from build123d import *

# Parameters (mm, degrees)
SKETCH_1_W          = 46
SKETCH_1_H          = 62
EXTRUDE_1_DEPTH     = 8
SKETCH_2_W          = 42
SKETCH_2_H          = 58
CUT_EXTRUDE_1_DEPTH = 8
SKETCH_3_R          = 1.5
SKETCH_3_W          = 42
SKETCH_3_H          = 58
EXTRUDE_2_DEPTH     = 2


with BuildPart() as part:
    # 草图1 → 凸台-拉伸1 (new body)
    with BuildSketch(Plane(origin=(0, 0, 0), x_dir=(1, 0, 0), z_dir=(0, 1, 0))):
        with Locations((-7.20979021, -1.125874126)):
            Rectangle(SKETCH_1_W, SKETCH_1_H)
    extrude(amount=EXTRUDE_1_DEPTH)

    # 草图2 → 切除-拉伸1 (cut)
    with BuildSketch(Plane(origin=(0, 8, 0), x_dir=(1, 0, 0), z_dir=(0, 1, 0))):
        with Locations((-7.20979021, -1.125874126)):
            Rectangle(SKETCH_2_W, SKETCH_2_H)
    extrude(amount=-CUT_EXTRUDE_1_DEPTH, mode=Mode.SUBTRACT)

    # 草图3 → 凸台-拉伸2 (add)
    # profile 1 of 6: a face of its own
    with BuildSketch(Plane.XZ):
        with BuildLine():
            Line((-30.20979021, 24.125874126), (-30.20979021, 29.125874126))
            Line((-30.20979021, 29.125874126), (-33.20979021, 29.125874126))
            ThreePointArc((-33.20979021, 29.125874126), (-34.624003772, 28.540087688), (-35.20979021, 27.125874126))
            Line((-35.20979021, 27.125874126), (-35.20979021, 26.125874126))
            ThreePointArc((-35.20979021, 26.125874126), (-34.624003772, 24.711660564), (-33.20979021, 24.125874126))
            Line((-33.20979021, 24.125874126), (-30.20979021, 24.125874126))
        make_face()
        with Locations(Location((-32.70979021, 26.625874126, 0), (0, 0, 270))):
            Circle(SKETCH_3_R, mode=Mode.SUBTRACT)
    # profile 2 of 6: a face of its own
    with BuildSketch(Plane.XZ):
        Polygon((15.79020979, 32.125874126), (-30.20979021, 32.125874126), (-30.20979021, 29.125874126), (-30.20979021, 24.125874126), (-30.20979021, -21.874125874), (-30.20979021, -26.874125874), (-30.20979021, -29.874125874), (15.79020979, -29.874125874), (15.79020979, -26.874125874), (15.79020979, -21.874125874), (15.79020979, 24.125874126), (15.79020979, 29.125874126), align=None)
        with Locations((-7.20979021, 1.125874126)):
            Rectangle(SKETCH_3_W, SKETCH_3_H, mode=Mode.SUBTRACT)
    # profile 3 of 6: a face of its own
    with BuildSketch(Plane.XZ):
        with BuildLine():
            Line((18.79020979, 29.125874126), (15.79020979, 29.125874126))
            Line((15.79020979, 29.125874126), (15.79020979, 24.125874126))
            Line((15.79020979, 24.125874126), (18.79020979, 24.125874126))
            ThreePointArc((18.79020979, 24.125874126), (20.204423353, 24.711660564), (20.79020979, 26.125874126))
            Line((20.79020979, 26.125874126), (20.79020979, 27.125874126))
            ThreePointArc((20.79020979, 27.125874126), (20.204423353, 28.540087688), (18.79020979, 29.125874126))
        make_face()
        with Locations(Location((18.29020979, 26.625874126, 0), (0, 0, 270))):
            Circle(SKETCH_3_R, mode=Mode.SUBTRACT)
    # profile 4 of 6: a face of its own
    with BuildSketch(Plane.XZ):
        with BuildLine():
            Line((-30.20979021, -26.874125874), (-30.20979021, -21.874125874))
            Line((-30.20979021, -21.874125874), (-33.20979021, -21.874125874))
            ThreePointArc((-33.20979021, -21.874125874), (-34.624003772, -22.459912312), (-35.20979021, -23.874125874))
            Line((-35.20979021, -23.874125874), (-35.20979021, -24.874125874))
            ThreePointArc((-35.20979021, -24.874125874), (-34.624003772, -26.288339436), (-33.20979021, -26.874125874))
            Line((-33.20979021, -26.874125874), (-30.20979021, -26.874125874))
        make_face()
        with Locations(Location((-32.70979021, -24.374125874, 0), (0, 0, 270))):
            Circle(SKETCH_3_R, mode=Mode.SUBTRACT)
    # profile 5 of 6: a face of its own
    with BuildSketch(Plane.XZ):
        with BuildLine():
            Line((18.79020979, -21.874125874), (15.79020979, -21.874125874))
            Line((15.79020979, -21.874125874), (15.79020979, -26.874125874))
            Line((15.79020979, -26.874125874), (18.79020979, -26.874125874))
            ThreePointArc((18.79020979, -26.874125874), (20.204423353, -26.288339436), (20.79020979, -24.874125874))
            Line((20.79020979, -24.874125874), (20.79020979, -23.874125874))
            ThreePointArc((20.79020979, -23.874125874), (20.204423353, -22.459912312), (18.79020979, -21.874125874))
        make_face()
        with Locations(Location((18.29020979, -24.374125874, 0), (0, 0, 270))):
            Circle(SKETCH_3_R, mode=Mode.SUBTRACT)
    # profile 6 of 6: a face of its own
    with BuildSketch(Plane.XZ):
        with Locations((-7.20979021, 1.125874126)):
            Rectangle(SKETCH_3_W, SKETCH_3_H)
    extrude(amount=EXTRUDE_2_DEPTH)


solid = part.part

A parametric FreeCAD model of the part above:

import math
import FreeCAD as App
import Part
import Sketcher
from FreeCAD import Vector
Q = App.Units.Quantity

doc = App.newDocument("Part")
body = doc.addObject("PartDesign::Body", "Body")

sketch1 = body.newObject("Sketcher::SketchObject", "Sketch")
sketch1.AttachmentSupport = (doc.getObject("XZ_Plane"), [""])
sketch1.MapMode = "FlatFace"
sketch1.addGeometry(Part.LineSegment(Vector(-30.20979, -29.874126, 0), Vector(-30.20979, 32.125874, 0)), False)
sketch1.addGeometry(Part.LineSegment(Vector(-30.20979, 32.125874, 0), Vector(15.79021, 32.125874, 0)), False)
sketch1.addGeometry(Part.LineSegment(Vector(15.79021, 32.125874, 0), Vector(15.79021, -29.874126, 0)), False)
sketch1.addGeometry(Part.LineSegment(Vector(15.79021, -29.874126, 0), Vector(-30.20979, -29.874126, 0)), False)
sketch1.addConstraint(Sketcher.Constraint("Coincident", 0, 2, 1, 1))
sketch1.addConstraint(Sketcher.Constraint("Coincident", 1, 2, 2, 1))
sketch1.addConstraint(Sketcher.Constraint("Coincident", 2, 2, 3, 1))
sketch1.addConstraint(Sketcher.Constraint("Coincident", 3, 2, 0, 1))
sketch1.addConstraint(Sketcher.Constraint("Vertical", 0))
sketch1.addConstraint(Sketcher.Constraint("Horizontal", 1))
sketch1.addConstraint(Sketcher.Constraint("Vertical", 2))
sketch1.addConstraint(Sketcher.Constraint("Horizontal", 3))
sketch1.addConstraint(Sketcher.Constraint("DistanceX", 1, 1, 1, 2, Q("46 mm")))
sketch1.addConstraint(Sketcher.Constraint("DistanceY", 0, 1, 0, 2, Q("62 mm")))
sketch1.addConstraint(Sketcher.Constraint("DistanceX", 0, 2, -1, 1, Q("30.20979 mm")))
sketch1.addConstraint(Sketcher.Constraint("DistanceY", -1, 1, 0, 2, Q("32.125874 mm")))
pad1 = body.newObject("PartDesign::Pad", "Pad")
pad1.Profile = sketch1
pad1.Length = 8
pad1.Reversed = True

sketch2 = body.newObject("Sketcher::SketchObject", "Sketch001")
sketch2.AttachmentSupport = (doc.getObject("XZ_Plane"), [""])
sketch2.MapMode = "FlatFace"
sketch2.AttachmentOffset = App.Placement(Vector(0, 0, -8), App.Rotation())
sketch2.addGeometry(Part.LineSegment(Vector(-28.20979, -27.874126, 0), Vector(-28.20979, 30.125874, 0)), False)
sketch2.addGeometry(Part.LineSegment(Vector(-28.20979, 30.125874, 0), Vector(13.79021, 30.125874, 0)), False)
sketch2.addGeometry(Part.LineSegment(Vector(13.79021, 30.125874, 0), Vector(13.79021, -27.874126, 0)), False)
sketch2.addGeometry(Part.LineSegment(Vector(13.79021, -27.874126, 0), Vector(-28.20979, -27.874126, 0)), False)
sketch2.addConstraint(Sketcher.Constraint("Coincident", 0, 2, 1, 1))
sketch2.addConstraint(Sketcher.Constraint("Coincident", 1, 2, 2, 1))
sketch2.addConstraint(Sketcher.Constraint("Coincident", 2, 2, 3, 1))
sketch2.addConstraint(Sketcher.Constraint("Coincident", 3, 2, 0, 1))
sketch2.addConstraint(Sketcher.Constraint("Vertical", 0))
sketch2.addConstraint(Sketcher.Constraint("Horizontal", 1))
sketch2.addConstraint(Sketcher.Constraint("Vertical", 2))
sketch2.addConstraint(Sketcher.Constraint("Horizontal", 3))
sketch2.addConstraint(Sketcher.Constraint("DistanceX", 1, 1, 1, 2, Q("42 mm")))
sketch2.addConstraint(Sketcher.Constraint("DistanceY", 0, 1, 0, 2, Q("58 mm")))
sketch2.addConstraint(Sketcher.Constraint("DistanceX", 0, 2, -1, 1, Q("28.20979 mm")))
sketch2.addConstraint(Sketcher.Constraint("DistanceY", -1, 1, 0, 2, Q("30.125874 mm")))
pocket1 = body.newObject("PartDesign::Pocket", "Pocket")
pocket1.Profile = sketch2
pocket1.Length = 8
pocket1.Reversed = True

sketch3 = body.newObject("Sketcher::SketchObject", "Sketch002")
sketch3.AttachmentSupport = (doc.getObject("XZ_Plane"), [""])
sketch3.MapMode = "FlatFace"
sketch3.addGeometry(Part.LineSegment(Vector(-33.20979, 24.125874, 0), Vector(-30.20979, 24.125874, 0)), False)
sketch3.addGeometry(Part.LineSegment(Vector(-30.20979, 24.125874, 0), Vector(-30.20979, -21.874126, 0)), False)
sketch3.addGeometry(Part.LineSegment(Vector(-30.20979, -21.874126, 0), Vector(-33.20979, -21.874126, 0)), False)
sketch3.addGeometry(Part.ArcOfCircle(Part.Circle(Vector(-33.20979, -23.874126, 0), Vector(0, 0, 1), 2), math.radians(90), math.radians(180)), False)
sketch3.addGeometry(Part.LineSegment(Vector(-35.20979, -23.874126, 0), Vector(-35.20979, -24.874126, 0)), False)
sketch3.addGeometry(Part.ArcOfCircle(Part.Circle(Vector(-33.20979, -24.874126, 0), Vector(0, 0, 1), 2), math.radians(-180), math.radians(-90)), False)
sketch3.addGeometry(Part.LineSegment(Vector(-33.20979, -26.874126, 0), Vector(-30.20979, -26.874126, 0)), False)
sketch3.addGeometry(Part.LineSegment(Vector(-30.20979, -26.874126, 0), Vector(-30.20979, -29.874126, 0)), False)
sketch3.addGeometry(Part.LineSegment(Vector(-30.20979, -29.874126, 0), Vector(15.79021, -29.874126, 0)), False)
sketch3.addGeometry(Part.LineSegment(Vector(15.79021, -29.874126, 0), Vector(15.79021, -26.874126, 0)), False)
sketch3.addGeometry(Part.LineSegment(Vector(15.79021, -26.874126, 0), Vector(18.79021, -26.874126, 0)), False)
sketch3.addGeometry(Part.ArcOfCircle(Part.Circle(Vector(18.79021, -24.874126, 0), Vector(0, 0, 1), 2), math.radians(-90), math.radians(0)), False)
sketch3.addGeometry(Part.LineSegment(Vector(20.79021, -24.874126, 0), Vector(20.79021, -23.874126, 0)), False)
sketch3.addGeometry(Part.ArcOfCircle(Part.Circle(Vector(18.79021, -23.874126, 0), Vector(0, 0, 1), 2), math.radians(0), math.radians(90)), False)
sketch3.addGeometry(Part.LineSegment(Vector(18.79021, -21.874126, 0), Vector(15.79021, -21.874126, 0)), False)
sketch3.addGeometry(Part.LineSegment(Vector(15.79021, -21.874126, 0), Vector(15.79021, 24.125874, 0)), False)
sketch3.addGeometry(Part.LineSegment(Vector(15.79021, 24.125874, 0), Vector(18.79021, 24.125874, 0)), False)
sketch3.addGeometry(Part.ArcOfCircle(Part.Circle(Vector(18.79021, 26.125874, 0), Vector(0, 0, 1), 2), math.radians(-90), math.radians(0)), False)
sketch3.addGeometry(Part.LineSegment(Vector(20.79021, 26.125874, 0), Vector(20.79021, 27.125874, 0)), False)
sketch3.addGeometry(Part.ArcOfCircle(Part.Circle(Vector(18.79021, 27.125874, 0), Vector(0, 0, 1), 2), math.radians(0), math.radians(90)), False)
sketch3.addGeometry(Part.LineSegment(Vector(18.79021, 29.125874, 0), Vector(15.79021, 29.125874, 0)), False)
sketch3.addGeometry(Part.LineSegment(Vector(15.79021, 29.125874, 0), Vector(15.79021, 32.125874, 0)), False)
sketch3.addGeometry(Part.LineSegment(Vector(15.79021, 32.125874, 0), Vector(-30.20979, 32.125874, 0)), False)
sketch3.addGeometry(Part.LineSegment(Vector(-30.20979, 32.125874, 0), Vector(-30.20979, 29.125874, 0)), False)
sketch3.addGeometry(Part.LineSegment(Vector(-30.20979, 29.125874, 0), Vector(-33.20979, 29.125874, 0)), False)
sketch3.addGeometry(Part.ArcOfCircle(Part.Circle(Vector(-33.20979, 27.125874, 0), Vector(0, 0, 1), 2), math.radians(90), math.radians(180)), False)
sketch3.addGeometry(Part.LineSegment(Vector(-35.20979, 27.125874, 0), Vector(-35.20979, 26.125874, 0)), False)
sketch3.addGeometry(Part.ArcOfCircle(Part.Circle(Vector(-33.20979, 26.125874, 0), Vector(0, 0, 1), 2), math.radians(-180), math.radians(-90)), False)
sketch3.addGeometry(Part.Circle(Vector(-32.70979, 26.625874, 0), Vector(0, 0, 1), 1.5), False)
sketch3.addGeometry(Part.Circle(Vector(18.29021, -24.374126, 0), Vector(0, 0, 1), 1.5), False)
sketch3.addGeometry(Part.Circle(Vector(18.29021, 26.625874, 0), Vector(0, 0, 1), 1.5), False)
sketch3.addGeometry(Part.Circle(Vector(-32.70979, -24.374126, 0), Vector(0, 0, 1), 1.5), False)
sketch3.addConstraint(Sketcher.Constraint("Coincident", 0, 2, 1, 1))
sketch3.addConstraint(Sketcher.Constraint("Coincident", 1, 2, 2, 1))
sketch3.addConstraint(Sketcher.Constraint("Tangent", 2, 2, 3, 1))
sketch3.addConstraint(Sketcher.Constraint("Tangent", 3, 2, 4, 1))
sketch3.addConstraint(Sketcher.Constraint("Tangent", 4, 2, 5, 1))
sketch3.addConstraint(Sketcher.Constraint("Tangent", 5, 2, 6, 1))
sketch3.addConstraint(Sketcher.Constraint("Coincident", 6, 2, 7, 1))
sketch3.addConstraint(Sketcher.Constraint("Coincident", 7, 2, 8, 1))
sketch3.addConstraint(Sketcher.Constraint("Coincident", 8, 2, 9, 1))
sketch3.addConstraint(Sketcher.Constraint("Coincident", 9, 2, 10, 1))
sketch3.addConstraint(Sketcher.Constraint("Tangent", 10, 2, 11, 1))
sketch3.addConstraint(Sketcher.Constraint("Tangent", 11, 2, 12, 1))
sketch3.addConstraint(Sketcher.Constraint("Tangent", 12, 2, 13, 1))
sketch3.addConstraint(Sketcher.Constraint("Tangent", 13, 2, 14, 1))
sketch3.addConstraint(Sketcher.Constraint("Coincident", 14, 2, 15, 1))
sketch3.addConstraint(Sketcher.Constraint("Coincident", 15, 2, 16, 1))
sketch3.addConstraint(Sketcher.Constraint("Tangent", 16, 2, 17, 1))
sketch3.addConstraint(Sketcher.Constraint("Tangent", 17, 2, 18, 1))
sketch3.addConstraint(Sketcher.Constraint("Tangent", 18, 2, 19, 1))
sketch3.addConstraint(Sketcher.Constraint("Tangent", 19, 2, 20, 1))
sketch3.addConstraint(Sketcher.Constraint("Coincident", 20, 2, 21, 1))
sketch3.addConstraint(Sketcher.Constraint("Coincident", 21, 2, 22, 1))
sketch3.addConstraint(Sketcher.Constraint("Coincident", 22, 2, 23, 1))
sketch3.addConstraint(Sketcher.Constraint("Coincident", 23, 2, 24, 1))
sketch3.addConstraint(Sketcher.Constraint("Tangent", 24, 2, 25, 1))
sketch3.addConstraint(Sketcher.Constraint("Tangent", 25, 2, 26, 1))
sketch3.addConstraint(Sketcher.Constraint("Tangent", 26, 2, 27, 1))
sketch3.addConstraint(Sketcher.Constraint("Tangent", 27, 2, 0, 1))
sketch3.addConstraint(Sketcher.Constraint("Horizontal", 0))
sketch3.addConstraint(Sketcher.Constraint("Vertical", 1))
sketch3.addConstraint(Sketcher.Constraint("Horizontal", 2))
sketch3.addConstraint(Sketcher.Constraint("Vertical", 4))
sketch3.addConstraint(Sketcher.Constraint("Horizontal", 6))
sketch3.addConstraint(Sketcher.Constraint("Vertical", 7))
sketch3.addConstraint(Sketcher.Constraint("Horizontal", 8))
sketch3.addConstraint(Sketcher.Constraint("Vertical", 9))
sketch3.addConstraint(Sketcher.Constraint("Horizontal", 10))
sketch3.addConstraint(Sketcher.Constraint("Vertical", 12))
sketch3.addConstraint(Sketcher.Constraint("Horizontal", 14))
sketch3.addConstraint(Sketcher.Constraint("Vertical", 15))
sketch3.addConstraint(Sketcher.Constraint("Horizontal", 16))
sketch3.addConstraint(Sketcher.Constraint("Vertical", 18))
sketch3.addConstraint(Sketcher.Constraint("Horizontal", 20))
sketch3.addConstraint(Sketcher.Constraint("Vertical", 21))
sketch3.addConstraint(Sketcher.Constraint("Horizontal", 22))
sketch3.addConstraint(Sketcher.Constraint("Vertical", 23))
sketch3.addConstraint(Sketcher.Constraint("Horizontal", 24))
sketch3.addConstraint(Sketcher.Constraint("Vertical", 26))
sketch3.addConstraint(Sketcher.Constraint("Equal", 3, 5))
sketch3.addConstraint(Sketcher.Constraint("Equal", 5, 11))
sketch3.addConstraint(Sketcher.Constraint("Equal", 11, 13))
sketch3.addConstraint(Sketcher.Constraint("Equal", 13, 17))
sketch3.addConstraint(Sketcher.Constraint("Equal", 17, 19))
sketch3.addConstraint(Sketcher.Constraint("Equal", 19, 25))
sketch3.addConstraint(Sketcher.Constraint("Equal", 25, 27))
sketch3.addConstraint(Sketcher.Constraint("Equal", 28, 29))
sketch3.addConstraint(Sketcher.Constraint("Equal", 29, 30))
sketch3.addConstraint(Sketcher.Constraint("Equal", 30, 31))
sketch3.addConstraint(Sketcher.Constraint("Horizontal", 5, 3, 11, 3))
sketch3.addConstraint(Sketcher.Constraint("Horizontal", 3, 3, 13, 3))
sketch3.addConstraint(Sketcher.Constraint("Horizontal", 19, 3, 25, 3))
sketch3.addConstraint(Sketcher.Constraint("Horizontal", 17, 3, 27, 3))
sketch3.addConstraint(Sketcher.Constraint("Horizontal", 28, 3, 30, 3))
sketch3.addConstraint(Sketcher.Constraint("Horizontal", 29, 3, 31, 3))
sketch3.addConstraint(Sketcher.Constraint("Vertical", 13, 3, 17, 3))
sketch3.addConstraint(Sketcher.Constraint("Vertical", 5, 3, 25, 3))
sketch3.addConstraint(Sketcher.Constraint("Vertical", 29, 3, 30, 3))
sketch3.addConstraint(Sketcher.Constraint("Vertical", 28, 3, 31, 3))
sketch3.addConstraint(Sketcher.Constraint("Vertical", 1, 2, 6, 2))
sketch3.addConstraint(Sketcher.Constraint("Vertical", 9, 2, 14, 2))
sketch3.addConstraint(Sketcher.Constraint("Vertical", 15, 2, 20, 2))
sketch3.addConstraint(Sketcher.Constraint("Vertical", 7, 2, 22, 2))
sketch3.addConstraint(Sketcher.Constraint("Equal", 6, 10))
sketch3.addConstraint(Sketcher.Constraint("Equal", 22, 1))
sketch3.addConstraint(Sketcher.Constraint("Equal", 24, 7))
sketch3.addConstraint(Sketcher.Constraint("Equal", 12, 18))
sketch3.addConstraint(Sketcher.Constraint("Equal", 9, 21))
sketch3.addConstraint(Sketcher.Constraint("Diameter", 28, Q("3 mm")))
sketch3.addConstraint(Sketcher.Constraint("Radius", 3, Q("2 mm")))
sketch3.addConstraint(Sketcher.Constraint("DistanceX", 0, 1, 0, 2, Q("3 mm")))
sketch3.addConstraint(Sketcher.Constraint("DistanceX", 8, 1, 8, 2, Q("46 mm")))
sketch3.addConstraint(Sketcher.Constraint("DistanceY", 4, 2, 4, 1, Q("1 mm")))
sketch3.addConstraint(Sketcher.Constraint("DistanceX", 28, 3, 30, 3, Q("51 mm")))
sketch3.addConstraint(Sketcher.Constraint("DistanceY", 29, 3, 30, 3, Q("51 mm")))
sketch3.addConstraint(Sketcher.Constraint("DistanceX", 25, 3, 28, 3, Q("0.5 mm")))
sketch3.addConstraint(Sketcher.Constraint("DistanceY", 28, 3, 25, 3, Q("0.5 mm")))
sketch3.addConstraint(Sketcher.Constraint("DistanceX", 3, 3, -1, 1, Q("33.20979 mm")))
sketch3.addConstraint(Sketcher.Constraint("DistanceY", 3, 3, -1, 1, Q("23.874126 mm")))
pad2 = body.newObject("PartDesign::Pad", "Pad001")
pad2.Profile = sketch3
pad2.Length = 2

doc.recompute()
